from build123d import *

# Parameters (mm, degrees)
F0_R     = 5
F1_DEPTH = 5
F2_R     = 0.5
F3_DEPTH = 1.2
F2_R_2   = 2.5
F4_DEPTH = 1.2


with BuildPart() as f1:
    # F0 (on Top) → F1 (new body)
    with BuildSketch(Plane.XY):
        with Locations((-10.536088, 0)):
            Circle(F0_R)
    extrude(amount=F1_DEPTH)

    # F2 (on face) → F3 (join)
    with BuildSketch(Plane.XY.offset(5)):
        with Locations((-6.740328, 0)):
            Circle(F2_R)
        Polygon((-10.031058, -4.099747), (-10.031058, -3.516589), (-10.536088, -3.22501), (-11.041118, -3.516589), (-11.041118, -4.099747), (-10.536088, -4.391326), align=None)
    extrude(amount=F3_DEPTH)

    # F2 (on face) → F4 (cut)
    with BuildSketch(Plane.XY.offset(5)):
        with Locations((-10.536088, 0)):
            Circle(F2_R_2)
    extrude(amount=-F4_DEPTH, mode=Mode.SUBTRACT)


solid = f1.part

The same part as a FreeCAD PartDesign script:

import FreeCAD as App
import Part
import Sketcher
Q = App.Units.Quantity

doc = App.newDocument("Part")
params = doc.addObject("Spreadsheet::Sheet", "Params")
for row, (alias, value) in enumerate([
    ("sketch1_diameter", "10 mm"),
    ("pad1_length", "5 mm"),
    ("sketch2_diameter", "1 mm"),
    ("pad2_length", "1.2 mm"),
    ("sketch3_diameter", "5 mm"),
    ("pocket1_length", "1.2 mm"),
], start=1):
    params.set(f"A{row}", alias)
    params.set(f"B{row}", "=" + value)
    params.setAlias(f"B{row}", alias)

body = doc.addObject("PartDesign::Body", "Body")

# Sketch on XY plane
sketch1 = body.newObject("Sketcher::SketchObject", "Sketch")
sketch1.AttachmentSupport = (doc.getObject("XY_Plane"), [""])
sketch1.MapMode = "FlatFace"
sketch1.addGeometry(Part.Circle(App.Vector(-11, 0, 0), App.Vector(0, 0, 1), 5), False)
sketch1.addConstraint(Sketcher.Constraint("PointOnObject", 0, 3, -1))
sketch1.addConstraint(Sketcher.Constraint("Diameter", 0, Q("10 mm")))
sketch1.addConstraint(Sketcher.Constraint("DistanceX", 0, 3, -1, 1, Q("10.536088 mm")))
sketch1.setExpression("Constraints[1]", "Params.sketch1_diameter")
pad1 = body.newObject("PartDesign::Pad", "Pad")
pad1.Profile = sketch1
pad1.setExpression("Length", "Params.pad1_length")

# Sketch on XY plane
sketch2 = body.newObject("Sketcher::SketchObject", "Sketch001")
sketch2.AttachmentSupport = (doc.getObject("XY_Plane"), [""])
sketch2.MapMode = "FlatFace"
sketch2.AttachmentOffset = App.Placement(App.Vector(0, 0, 5), App.Rotation())
sketch2.addGeometry(Part.Circle(App.Vector(-6.7, 0, 0), App.Vector(0, 0, 1), 0.5), False)
sketch2.addGeometry(Part.LineSegment(App.Vector(-10, -4.1, 0), App.Vector(-10, -3.5, 0)), False)
sketch2.addGeometry(Part.LineSegment(App.Vector(-10, -3.5, 0), App.Vector(-10.5, -3.2, 0)), False)
sketch2.addGeometry(Part.LineSegment(App.Vector(-10.5, -3.2, 0), App.Vector(-11, -3.5, 0)), False)
sketch2.addGeometry(Part.LineSegment(App.Vector(-11, -3.5, 0), App.Vector(-11, -4.1, 0)), False)
sketch2.addGeometry(Part.LineSegment(App.Vector(-11, -4.1, 0), App.Vector(-10.5, -4.4, 0)), False)
sketch2.addGeometry(Part.LineSegment(App.Vector(-10.5, -4.4, 0), App.Vector(-10, -4.1, 0)), False)
sketch2.addConstraint(Sketcher.Constraint("Coincident", 1, 2, 2, 1))
sketch2.addConstraint(Sketcher.Constraint("Coincident", 2, 2, 3, 1))
sketch2.addConstraint(Sketcher.Constraint("Coincident", 3, 2, 4, 1))
sketch2.addConstraint(Sketcher.Constraint("Coincident", 4, 2, 5, 1))
sketch2.addConstraint(Sketcher.Constraint("Coincident", 5, 2, 6, 1))
sketch2.addConstraint(Sketcher.Constraint("Coincident", 6, 2, 1, 1))
sketch2.addConstraint(Sketcher.Constraint("Vertical", 1))
sketch2.addConstraint(Sketcher.Constraint("Vertical", 4))
sketch2.addConstraint(Sketcher.Constraint("PointOnObject", 0, 3, -1))
sketch2.addConstraint(Sketcher.Constraint("Parallel", 2, 5))
sketch2.addConstraint(Sketcher.Constraint("Parallel", 3, 6))
sketch2.addConstraint(Sketcher.Constraint("Horizontal", 1, 2, 3, 2))
sketch2.addConstraint(Sketcher.Constraint("Horizontal", 4, 2, 6, 2))
sketch2.addConstraint(Sketcher.Constraint("Vertical", 2, 2, 5, 2))
sketch2.addConstraint(Sketcher.Constraint("Diameter", 0, Q("1 mm")))
sketch2.addConstraint(Sketcher.Constraint("Angle", 2, Q("150.000018 deg")))
sketch2.addConstraint(Sketcher.Constraint("Distance", 2, Q("0.583158 mm")))
sketch2.addConstraint(Sketcher.Constraint("DistanceY", 1, 1, 1, 2, Q("0.583158 mm")))
sketch2.addConstraint(Sketcher.Constraint("DistanceY", 1, 2, -1, 1, Q("3.516589 mm")))
sketch2.addConstraint(Sketcher.Constraint("DistanceX", 3, 2, -1, 1, Q("11.041118 mm")))
sketch2.addConstraint(Sketcher.Constraint("DistanceX", 1, 2, 0, 3, Q("3.29073 mm")))
sketch2.setExpression("Constraints[14]", "Params.sketch2_diameter")
pad2 = body.newObject("PartDesign::Pad", "Pad001")
pad2.Profile = sketch2
pad2.setExpression("Length", "Params.pad2_length")

# Sketch on XY plane
sketch3 = body.newObject("Sketcher::SketchObject", "Sketch002")
sketch3.AttachmentSupport = (doc.getObject("XY_Plane"), [""])
sketch3.MapMode = "FlatFace"
sketch3.AttachmentOffset = App.Placement(App.Vector(0, 0, 5), App.Rotation())
sketch3.addGeometry(Part.Circle(App.Vector(-10.5, 0, 0), App.Vector(0, 0, 1), 2.5), False)
sketch3.addConstraint(Sketcher.Constraint("PointOnObject", 0, 3, -1))
sketch3.addConstraint(Sketcher.Constraint("Diameter", 0, Q("5 mm")))
sketch3.addConstraint(Sketcher.Constraint("DistanceX", 0, 3, -1, 1, Q("10.536088 mm")))
sketch3.setExpression("Constraints[1]", "Params.sketch3_diameter")
pocket1 = body.newObject("PartDesign::Pocket", "Pocket")
pocket1.Profile = sketch3
pocket1.setExpression("Length", "Params.pocket1_length")

doc.recompute()
